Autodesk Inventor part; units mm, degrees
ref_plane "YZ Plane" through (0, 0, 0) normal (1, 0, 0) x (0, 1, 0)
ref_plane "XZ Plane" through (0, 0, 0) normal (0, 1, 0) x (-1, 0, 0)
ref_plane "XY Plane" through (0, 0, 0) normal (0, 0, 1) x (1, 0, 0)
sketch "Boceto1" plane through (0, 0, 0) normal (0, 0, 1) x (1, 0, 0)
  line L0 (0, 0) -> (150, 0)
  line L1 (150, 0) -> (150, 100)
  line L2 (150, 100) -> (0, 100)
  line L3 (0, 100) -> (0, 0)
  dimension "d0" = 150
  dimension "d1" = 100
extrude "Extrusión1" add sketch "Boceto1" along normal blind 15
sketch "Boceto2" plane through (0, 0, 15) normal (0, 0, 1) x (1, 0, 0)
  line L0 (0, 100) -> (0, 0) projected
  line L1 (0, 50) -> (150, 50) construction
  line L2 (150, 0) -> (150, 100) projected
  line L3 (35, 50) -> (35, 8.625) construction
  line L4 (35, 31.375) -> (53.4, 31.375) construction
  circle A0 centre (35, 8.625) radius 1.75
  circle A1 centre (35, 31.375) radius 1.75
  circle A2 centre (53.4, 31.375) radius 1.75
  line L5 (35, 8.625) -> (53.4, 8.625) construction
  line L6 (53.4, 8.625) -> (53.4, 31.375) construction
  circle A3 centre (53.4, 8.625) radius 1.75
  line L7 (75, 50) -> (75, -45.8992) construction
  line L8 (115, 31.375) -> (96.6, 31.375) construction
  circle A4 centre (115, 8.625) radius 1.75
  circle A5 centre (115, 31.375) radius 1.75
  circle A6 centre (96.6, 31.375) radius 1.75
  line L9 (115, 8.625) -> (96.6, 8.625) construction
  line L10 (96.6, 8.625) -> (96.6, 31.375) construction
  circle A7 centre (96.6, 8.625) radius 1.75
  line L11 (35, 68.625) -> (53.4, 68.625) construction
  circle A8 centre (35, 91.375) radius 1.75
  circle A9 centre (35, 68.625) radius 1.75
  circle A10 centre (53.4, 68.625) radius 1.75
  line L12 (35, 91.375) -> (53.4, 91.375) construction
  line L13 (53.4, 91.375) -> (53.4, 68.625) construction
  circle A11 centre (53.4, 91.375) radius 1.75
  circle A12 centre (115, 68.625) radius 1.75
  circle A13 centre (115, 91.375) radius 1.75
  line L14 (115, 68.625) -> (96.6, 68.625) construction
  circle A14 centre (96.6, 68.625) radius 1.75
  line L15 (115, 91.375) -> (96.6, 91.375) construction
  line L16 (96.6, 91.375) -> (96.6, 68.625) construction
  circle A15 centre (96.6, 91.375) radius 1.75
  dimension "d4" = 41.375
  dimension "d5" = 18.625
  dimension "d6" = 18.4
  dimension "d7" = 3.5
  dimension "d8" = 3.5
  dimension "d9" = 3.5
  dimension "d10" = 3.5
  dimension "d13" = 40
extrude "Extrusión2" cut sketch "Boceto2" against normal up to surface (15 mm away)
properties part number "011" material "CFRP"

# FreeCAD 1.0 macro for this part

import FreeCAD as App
import Part
import Sketcher


def add_polygon(sketch, points):
    """Adds a closed chain of lines whose ends are joined by coincident constraints."""
    first, n = sketch.GeometryCount, len(points)
    for a, b in zip(points, points[1:] + points[:1]):
        sketch.addGeometry(Part.LineSegment(App.Vector(*a, 0), App.Vector(*b, 0)), False)
    for i in range(n):
        sketch.addConstraint(Sketcher.Constraint("Coincident", first + i, 2, first + (i + 1) % n, 1))

doc = App.newDocument("Part")
body = doc.addObject("PartDesign::Body", "Body")

sketch1 = body.newObject("Sketcher::SketchObject", "Sketch")
sketch1.AttachmentSupport = (doc.getObject("XY_Plane"), [""])
sketch1.MapMode = "FlatFace"
add_polygon(sketch1, [(0, 100), (0, 0), (150, 0), (150, 100)])
sketch1.addConstraint([
    Sketcher.Constraint("Vertical", 0),
    Sketcher.Constraint("Horizontal", 1),
    Sketcher.Constraint("Vertical", 2),
    Sketcher.Constraint("Horizontal", 3),
    Sketcher.Constraint("Coincident", 0, 2, -1, 1),
    Sketcher.Constraint("DistanceX", 1, 1, 1, 2, 150.0),
    Sketcher.Constraint("DistanceY", 0, 2, 0, 1, 100.0),
])
pad1 = body.newObject("PartDesign::Pad", "Pad")
pad1.Profile = sketch1
pad1.Length = 15

sketch2 = body.newObject("Sketcher::SketchObject", "Sketch001")
sketch2.AttachmentSupport = (doc.getObject("XY_Plane"), [""])
sketch2.MapMode = "FlatFace"
sketch2.AttachmentOffset = App.Placement(App.Vector(0, 0, 15), App.Rotation())
sketch2.addGeometry([
    Part.Circle(App.Vector(35, 8.6, 0), App.Vector(0, 0, 1), 1.8),
    Part.Circle(App.Vector(35, 31.4, 0), App.Vector(0, 0, 1), 1.8),
    Part.Circle(App.Vector(53.4, 31.4, 0), App.Vector(0, 0, 1), 1.8),
    Part.Circle(App.Vector(53.4, 8.6, 0), App.Vector(0, 0, 1), 1.8),
    Part.Circle(App.Vector(115, 8.6, 0), App.Vector(0, 0, 1), 1.8),
    Part.Circle(App.Vector(115, 31.4, 0), App.Vector(0, 0, 1), 1.8),
    Part.Circle(App.Vector(96.6, 31.4, 0), App.Vector(0, 0, 1), 1.8),
    Part.Circle(App.Vector(96.6, 8.6, 0), App.Vector(0, 0, 1), 1.8),
    Part.Circle(App.Vector(35, 91.4, 0), App.Vector(0, 0, 1), 1.8),
    Part.Circle(App.Vector(35, 68.6, 0), App.Vector(0, 0, 1), 1.8),
    Part.Circle(App.Vector(53.4, 68.6, 0), App.Vector(0, 0, 1), 1.8),
    Part.Circle(App.Vector(53.4, 91.4, 0), App.Vector(0, 0, 1), 1.8),
    Part.Circle(App.Vector(115, 68.6, 0), App.Vector(0, 0, 1), 1.8),
    Part.Circle(App.Vector(115, 91.4, 0), App.Vector(0, 0, 1), 1.8),
    Part.Circle(App.Vector(96.6, 68.6, 0), App.Vector(0, 0, 1), 1.8),
    Part.Circle(App.Vector(96.6, 91.4, 0), App.Vector(0, 0, 1), 1.8),
], False)
sketch2.addConstraint([
    Sketcher.Constraint("Equal", 0, 1),
    Sketcher.Constraint("Equal", 1, 2),
    Sketcher.Constraint("Equal", 2, 3),
    Sketcher.Constraint("Equal", 3, 4),
    Sketcher.Constraint("Equal", 4, 5),
    Sketcher.Constraint("Equal", 5, 6),
    Sketcher.Constraint("Equal", 6, 7),
    Sketcher.Constraint("Equal", 7, 8),
    Sketcher.Constraint("Equal", 8, 9),
    Sketcher.Constraint("Equal", 9, 10),
    Sketcher.Constraint("Equal", 10, 11),
    Sketcher.Constraint("Equal", 11, 12),
    Sketcher.Constraint("Equal", 12, 13),
    Sketcher.Constraint("Equal", 13, 14),
    Sketcher.Constraint("Equal", 14, 15),
    Sketcher.Constraint("Horizontal", 1, 3, 2, 3),
    Sketcher.Constraint("Horizontal", 0, 3, 3, 3),
    Sketcher.Constraint("Horizontal", 3, 3, 4, 3),
    Sketcher.Constraint("Horizontal", 2, 3, 5, 3),
    Sketcher.Constraint("Horizontal", 5, 3, 6, 3),
    Sketcher.Constraint("Horizontal", 4, 3, 7, 3),
    Sketcher.Constraint("Horizontal", 9, 3, 10, 3),
    Sketcher.Constraint("Horizontal", 8, 3, 11, 3),
    Sketcher.Constraint("Horizontal", 10, 3, 12, 3),
    Sketcher.Constraint("Horizontal", 11, 3, 13, 3),
    Sketcher.Constraint("Horizontal", 12, 3, 14, 3),
    Sketcher.Constraint("Horizontal", 13, 3, 15, 3),
    Sketcher.Constraint("Vertical", 0, 3, 1, 3),
    Sketcher.Constraint("Vertical", 2, 3, 3, 3),
    Sketcher.Constraint("Vertical", 4, 3, 5, 3),
    Sketcher.Constraint("Vertical", 6, 3, 7, 3),
    Sketcher.Constraint("Vertical", 1, 3, 8, 3),
    Sketcher.Constraint("Vertical", 8, 3, 9, 3),
    Sketcher.Constraint("Vertical", 3, 3, 10, 3),
    Sketcher.Constraint("Vertical", 10, 3, 11, 3),
    Sketcher.Constraint("Vertical", 5, 3, 12, 3),
    Sketcher.Constraint("Vertical", 12, 3, 13, 3),
    Sketcher.Constraint("Vertical", 7, 3, 14, 3),
    Sketcher.Constraint("Vertical", 14, 3, 15, 3),
    Sketcher.Constraint("Diameter", 0, 3.5),
    Sketcher.Constraint("DistanceX", 1, 3, 2, 3, 18.4),
    Sketcher.Constraint("DistanceX", 6, 3, 5, 3, 18.4),
    Sketcher.Constraint("DistanceX", -1, 1, 0, 3, 35.0),
    Sketcher.Constraint("DistanceX", -1, 1, 4, 3, 115.0),
    Sketcher.Constraint("DistanceY", 1, 3, 8, 3, 60.0),
    Sketcher.Constraint("DistanceY", 0, 3, 9, 3, 60.0),
    Sketcher.Constraint("DistanceY", 0, 3, 1, 3, 22.75),
    Sketcher.Constraint("DistanceY", -1, 1, 0, 3, 8.625),
])
pocket1 = body.newObject("PartDesign::Pocket", "Pocket")
pocket1.Profile = sketch2
pocket1.Length = 15

doc.recompute()
